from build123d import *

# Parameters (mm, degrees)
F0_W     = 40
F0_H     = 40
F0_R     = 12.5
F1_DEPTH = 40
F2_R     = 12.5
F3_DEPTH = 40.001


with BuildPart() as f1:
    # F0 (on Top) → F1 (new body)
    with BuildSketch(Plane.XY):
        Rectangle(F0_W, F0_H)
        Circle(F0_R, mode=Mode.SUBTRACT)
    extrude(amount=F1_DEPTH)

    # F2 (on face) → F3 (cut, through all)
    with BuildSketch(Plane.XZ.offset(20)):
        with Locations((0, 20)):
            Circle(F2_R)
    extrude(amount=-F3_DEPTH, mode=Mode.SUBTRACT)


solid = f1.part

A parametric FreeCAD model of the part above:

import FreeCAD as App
import Part
import Sketcher
from FreeCAD import Vector
Q = App.Units.Quantity


def add_polygon(sketch, points):
    """Adds a closed chain of lines whose ends are joined by coincident constraints."""
    first, n = sketch.GeometryCount, len(points)
    for a, b in zip(points, points[1:] + points[:1]):
        sketch.addGeometry(Part.LineSegment(App.Vector(*a, 0), App.Vector(*b, 0)), False)
    for i in range(n):
        sketch.addConstraint(Sketcher.Constraint("Coincident", first + i, 2, first + (i + 1) % n, 1))

doc = App.newDocument("Part")
body = doc.addObject("PartDesign::Body", "Body")

# Sketch on XY plane
sketch1 = body.newObject("Sketcher::SketchObject", "Sketch")
sketch1.AttachmentSupport = (doc.getObject("XY_Plane"), [""])
sketch1.MapMode = "FlatFace"
add_polygon(sketch1, [(-20, 20), (-20, -20), (20, -20), (20, 20)])  # lines 0-3
sketch1.addGeometry(Part.Circle(Vector(0, 0, 0), Vector(0, 0, 1), 12), False)  # 4
sketch1.addConstraint([
    Sketcher.Constraint("Vertical", 0),
    Sketcher.Constraint("Horizontal", 1),
    Sketcher.Constraint("Vertical", 2),
    Sketcher.Constraint("Horizontal", 3),
    Sketcher.Constraint("Coincident", 4, 3, -1, 1),
    Sketcher.Constraint("Symmetric", 0, 2, 2, 2, -1, 1),
    Sketcher.Constraint("Equal", 3, 0),
    Sketcher.Constraint("Diameter", 4, Q("25 mm")),
    Sketcher.Constraint("DistanceX", 1, 1, 1, 2, Q("40 mm")),
])
pad1 = body.newObject("PartDesign::Pad", "Pad")
pad1.Profile = sketch1
pad1.Length = 40

# Sketch on XZ plane
sketch2 = body.newObject("Sketcher::SketchObject", "Sketch001")
sketch2.AttachmentSupport = (doc.getObject("XZ_Plane"), [""])
sketch2.MapMode = "FlatFace"
sketch2.AttachmentOffset = App.Placement(Vector(0, 0, 20), App.Rotation())
sketch2.addGeometry(Part.Circle(Vector(0, 20, 0), Vector(0, 0, 1), 12), False)
sketch2.addConstraint([
    Sketcher.Constraint("PointOnObject", 0, 3, -2),
    Sketcher.Constraint("Diameter", 0, Q("25 mm")),
    Sketcher.Constraint("DistanceY", -1, 1, 0, 3, Q("20 mm")),
])
pocket1 = body.newObject("PartDesign::Pocket", "Pocket")
pocket1.Profile = sketch2
pocket1.Type = "ThroughAll"

doc.recompute()
